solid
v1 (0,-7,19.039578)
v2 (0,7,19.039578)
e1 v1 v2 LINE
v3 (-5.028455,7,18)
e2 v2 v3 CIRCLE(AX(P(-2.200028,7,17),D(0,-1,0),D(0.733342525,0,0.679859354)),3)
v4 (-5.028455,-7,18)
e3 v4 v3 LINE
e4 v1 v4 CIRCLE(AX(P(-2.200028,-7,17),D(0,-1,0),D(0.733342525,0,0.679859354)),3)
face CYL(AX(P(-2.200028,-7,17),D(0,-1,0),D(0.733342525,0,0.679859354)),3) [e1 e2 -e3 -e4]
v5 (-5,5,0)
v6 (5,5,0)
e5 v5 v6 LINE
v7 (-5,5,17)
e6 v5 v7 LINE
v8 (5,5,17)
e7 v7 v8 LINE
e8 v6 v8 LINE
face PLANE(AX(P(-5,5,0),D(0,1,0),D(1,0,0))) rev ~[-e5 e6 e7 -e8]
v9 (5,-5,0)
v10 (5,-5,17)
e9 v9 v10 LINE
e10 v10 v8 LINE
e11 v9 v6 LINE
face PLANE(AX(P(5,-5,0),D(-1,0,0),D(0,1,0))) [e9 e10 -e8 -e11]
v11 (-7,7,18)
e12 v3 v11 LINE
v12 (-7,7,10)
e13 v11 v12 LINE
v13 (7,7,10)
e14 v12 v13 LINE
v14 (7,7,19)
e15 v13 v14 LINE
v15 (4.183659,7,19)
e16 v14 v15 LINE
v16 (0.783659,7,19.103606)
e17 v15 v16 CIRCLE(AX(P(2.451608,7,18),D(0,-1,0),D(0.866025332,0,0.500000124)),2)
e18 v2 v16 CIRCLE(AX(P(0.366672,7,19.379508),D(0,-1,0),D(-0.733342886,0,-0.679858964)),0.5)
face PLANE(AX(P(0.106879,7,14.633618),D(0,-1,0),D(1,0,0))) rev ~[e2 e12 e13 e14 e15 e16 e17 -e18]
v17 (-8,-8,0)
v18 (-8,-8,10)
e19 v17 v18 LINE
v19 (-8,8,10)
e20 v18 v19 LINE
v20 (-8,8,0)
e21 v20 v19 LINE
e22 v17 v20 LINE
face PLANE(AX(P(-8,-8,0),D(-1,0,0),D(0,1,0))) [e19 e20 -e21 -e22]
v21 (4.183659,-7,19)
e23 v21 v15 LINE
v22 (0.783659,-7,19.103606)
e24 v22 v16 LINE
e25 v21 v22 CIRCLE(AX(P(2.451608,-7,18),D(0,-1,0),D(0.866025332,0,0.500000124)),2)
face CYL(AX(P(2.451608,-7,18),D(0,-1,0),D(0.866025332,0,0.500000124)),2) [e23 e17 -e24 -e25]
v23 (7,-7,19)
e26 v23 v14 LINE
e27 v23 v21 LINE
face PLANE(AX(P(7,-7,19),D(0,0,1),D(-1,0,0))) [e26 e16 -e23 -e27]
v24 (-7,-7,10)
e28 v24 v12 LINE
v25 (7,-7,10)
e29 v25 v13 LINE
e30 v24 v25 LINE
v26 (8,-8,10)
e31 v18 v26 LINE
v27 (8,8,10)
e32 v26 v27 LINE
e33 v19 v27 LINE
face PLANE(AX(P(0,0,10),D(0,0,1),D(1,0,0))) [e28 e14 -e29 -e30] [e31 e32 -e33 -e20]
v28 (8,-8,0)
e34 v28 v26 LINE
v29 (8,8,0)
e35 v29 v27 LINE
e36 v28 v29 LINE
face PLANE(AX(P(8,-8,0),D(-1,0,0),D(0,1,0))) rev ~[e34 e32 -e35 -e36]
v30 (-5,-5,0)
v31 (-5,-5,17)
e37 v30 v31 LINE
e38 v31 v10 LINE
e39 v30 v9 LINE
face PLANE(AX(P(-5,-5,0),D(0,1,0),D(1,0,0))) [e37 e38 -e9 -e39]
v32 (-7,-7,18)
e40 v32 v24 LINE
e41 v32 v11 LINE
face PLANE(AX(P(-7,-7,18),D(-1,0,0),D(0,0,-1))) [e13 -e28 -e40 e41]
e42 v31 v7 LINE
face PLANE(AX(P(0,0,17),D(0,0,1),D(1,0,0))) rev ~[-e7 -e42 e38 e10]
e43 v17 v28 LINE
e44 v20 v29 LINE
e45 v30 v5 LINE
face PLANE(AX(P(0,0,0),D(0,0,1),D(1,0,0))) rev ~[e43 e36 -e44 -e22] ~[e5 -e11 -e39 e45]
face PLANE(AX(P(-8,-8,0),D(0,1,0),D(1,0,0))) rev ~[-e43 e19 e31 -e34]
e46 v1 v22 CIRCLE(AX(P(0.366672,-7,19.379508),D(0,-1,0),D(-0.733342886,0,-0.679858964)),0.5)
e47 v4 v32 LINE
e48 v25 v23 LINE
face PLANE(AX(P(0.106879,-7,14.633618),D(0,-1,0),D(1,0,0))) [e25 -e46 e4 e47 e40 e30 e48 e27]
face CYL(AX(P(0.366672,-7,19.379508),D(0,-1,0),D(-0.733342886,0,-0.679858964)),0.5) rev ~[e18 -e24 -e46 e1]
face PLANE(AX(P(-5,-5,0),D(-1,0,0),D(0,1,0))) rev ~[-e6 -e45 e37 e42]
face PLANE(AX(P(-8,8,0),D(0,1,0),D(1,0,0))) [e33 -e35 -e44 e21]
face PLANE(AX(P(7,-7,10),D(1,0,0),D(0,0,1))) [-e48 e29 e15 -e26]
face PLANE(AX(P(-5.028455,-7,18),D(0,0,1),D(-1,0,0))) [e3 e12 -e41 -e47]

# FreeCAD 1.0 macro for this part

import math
import FreeCAD as App
import Part
import Sketcher
from FreeCAD import Vector


def add_polygon(sketch, points):
    """Adds a closed chain of lines whose ends are joined by coincident constraints."""
    first, n = sketch.GeometryCount, len(points)
    for a, b in zip(points, points[1:] + points[:1]):
        sketch.addGeometry(Part.LineSegment(App.Vector(*a, 0), App.Vector(*b, 0)), False)
    for i in range(n):
        sketch.addConstraint(Sketcher.Constraint("Coincident", first + i, 2, first + (i + 1) % n, 1))

doc = App.newDocument("Part")
params = doc.addObject("Spreadsheet::Sheet", "Params")
for row, (alias, value) in enumerate([
    ("sketch1_width", "10 mm"),
    ("pad1_length", "17 mm"),
    ("sketch2_radius", "3 mm"),
    ("sketch2_radius2", "2 mm"),
    ("sketch2_radius3", "0.5 mm"),
    ("sketch2_width", "14 mm"),
    ("sketch2_height", "8 mm"),
    ("pad2_length", "14 mm"),
    ("sketch3_width", "16 mm"),
    ("pad3_length", "10 mm"),
], start=1):
    params.set(f"A{row}", alias)
    params.set(f"B{row}", "=" + value)
    params.setAlias(f"B{row}", alias)

body = doc.addObject("PartDesign::Body", "Body")

# Sketch on XY plane
sketch1 = doc.addObject("Sketcher::SketchObject", "Sketch")
body.addObject(sketch1)
sketch1.AttachmentSupport = (doc.XY_Plane, [""])
sketch1.MapMode = "FlatFace"
add_polygon(sketch1, [(-5, 5), (-5, -5), (5, -5), (5, 5)])  # lines 0-3
sketch1.addConstraint([
    Sketcher.Constraint("Vertical", 0),
    Sketcher.Constraint("Horizontal", 1),
    Sketcher.Constraint("Vertical", 2),
    Sketcher.Constraint("Horizontal", 3),
    Sketcher.Constraint("Symmetric", 0, 2, 2, 2, -1, 1),
    Sketcher.Constraint("Equal", 3, 0),
    Sketcher.Constraint("DistanceX", 1, 1, 1, 2, 10.0),
])
sketch1.setExpression("Constraints[10]", "Params.sketch1_width")
pad1 = doc.addObject("PartDesign::Pad", "Pad")
body.addObject(pad1)
pad1.Profile = sketch1
pad1.setExpression("Length", "Params.pad1_length")
body2 = doc.addObject("PartDesign::Body", "Body001")

# Sketch on XZ plane
sketch2 = doc.addObject("Sketcher::SketchObject", "Sketch001")
body2.addObject(sketch2)
sketch2.AttachmentSupport = (doc.getObject("XZ_Plane001"), [""])
sketch2.MapMode = "FlatFace"
sketch2.AttachmentOffset = App.Placement(Vector(0, 0, 7), App.Rotation())
sketch2.addGeometry([
    Part.ArcOfCircle(Part.Circle(Vector(-2.200028, 17, 0), Vector(0, 0, 1), 3), math.radians(42.832653), math.radians(160.528777)),  # 0
    Part.LineSegment(Vector(-5.028455, 18, 0), Vector(-7, 18, 0)),  # 1
    Part.LineSegment(Vector(-7, 18, 0), Vector(-7, 10, 0)),  # 2
    Part.LineSegment(Vector(-7, 10, 0), Vector(7, 10, 0)),  # 3
    Part.LineSegment(Vector(7, 10, 0), Vector(7, 19, 0)),  # 4
    Part.LineSegment(Vector(7, 19, 0), Vector(4.183659, 19, 0)),  # 5
    Part.ArcOfCircle(Part.Circle(Vector(2.451608, 18, 0), Vector(0, 0, 1), 2), math.radians(30.000008), math.radians(146.509198)),  # 6
    Part.ArcOfCircle(Part.Circle(Vector(0.366672, 19.379508, 0), Vector(0, 0, 1), 0.5), math.radians(-137.167377), math.radians(-33.490796)),  # 7
], False)
sketch2.addConstraint([
    Sketcher.Constraint("Coincident", 0, 2, 1, 1),
    Sketcher.Constraint("Coincident", 1, 2, 2, 1),
    Sketcher.Constraint("Coincident", 2, 2, 3, 1),
    Sketcher.Constraint("Coincident", 3, 2, 4, 1),
    Sketcher.Constraint("Coincident", 4, 2, 5, 1),
    Sketcher.Constraint("Coincident", 5, 2, 6, 1),
    Sketcher.Constraint("Tangent", 6, 2, 7, 2),
    Sketcher.Constraint("Tangent", 7, 1, 0, 1),
    Sketcher.Constraint("Horizontal", 1),
    Sketcher.Constraint("Vertical", 2),
    Sketcher.Constraint("Horizontal", 3),
    Sketcher.Constraint("Vertical", 4),
    Sketcher.Constraint("Horizontal", 5),
    Sketcher.Constraint("PointOnObject", 7, 1, -2),
    Sketcher.Constraint("Horizontal", 6, 3, 0, 2),
    Sketcher.Constraint("Radius", 0, 3.0),
    Sketcher.Constraint("Radius", 6, 2.0),
    Sketcher.Constraint("Radius", 7, 0.5),
    Sketcher.Constraint("DistanceX", 3, 1, 3, 2, 14.0),
    Sketcher.Constraint("DistanceY", 2, 2, 2, 1, 8.0),
    Sketcher.Constraint("DistanceY", 4, 1, 4, 2, 9.0),
    Sketcher.Constraint("DistanceY", -1, 1, 0, 3, 17.0),
    Sketcher.Constraint("DistanceY", -1, 1, 6, 3, 18.0),
    Sketcher.Constraint("DistanceX", 1, 2, -1, 1, 7.0),
    Sketcher.Constraint("DistanceX", 6, 2, 5, 2, 3.4),
])
sketch2.setExpression("Constraints[15]", "Params.sketch2_radius")
sketch2.setExpression("Constraints[16]", "Params.sketch2_radius2")
sketch2.setExpression("Constraints[17]", "Params.sketch2_radius3")
sketch2.setExpression("Constraints[18]", "Params.sketch2_width")
sketch2.setExpression("Constraints[19]", "Params.sketch2_height")
pad2 = doc.addObject("PartDesign::Pad", "Pad001")
body2.addObject(pad2)
pad2.Profile = sketch2
pad2.setExpression("Length", "Params.pad2_length")
pad2.Reversed = True
body3 = doc.addObject("PartDesign::Body", "Body002")

# Sketch on XY plane
sketch3 = doc.addObject("Sketcher::SketchObject", "Sketch002")
body3.addObject(sketch3)
sketch3.AttachmentSupport = (doc.getObject("XY_Plane002"), [""])
sketch3.MapMode = "FlatFace"
add_polygon(sketch3, [(-8, 8), (-8, -8), (8, -8), (8, 8)])  # lines 0-3
sketch3.addConstraint([
    Sketcher.Constraint("Vertical", 0),
    Sketcher.Constraint("Horizontal", 1),
    Sketcher.Constraint("Vertical", 2),
    Sketcher.Constraint("Horizontal", 3),
    Sketcher.Constraint("Symmetric", 0, 2, 2, 2, -1, 1),
    Sketcher.Constraint("Equal", 3, 0),
    Sketcher.Constraint("DistanceX", 1, 1, 1, 2, 16.0),
])
sketch3.setExpression("Constraints[10]", "Params.sketch3_width")
pad3 = doc.addObject("PartDesign::Pad", "Pad002")
body3.addObject(pad3)
pad3.Profile = sketch3
pad3.setExpression("Length", "Params.pad3_length")
doc.recompute()

boolean = doc.addObject("PartDesign::Boolean", "Boolean")
body3.addObject(boolean)
boolean.Type = "Fuse"
boolean.addObjects([body2])
doc.recompute()

boolean2 = doc.addObject("PartDesign::Boolean", "Boolean001")
body3.addObject(boolean2)
boolean2.Type = "Cut"
boolean2.addObjects([body])

doc.recompute()
